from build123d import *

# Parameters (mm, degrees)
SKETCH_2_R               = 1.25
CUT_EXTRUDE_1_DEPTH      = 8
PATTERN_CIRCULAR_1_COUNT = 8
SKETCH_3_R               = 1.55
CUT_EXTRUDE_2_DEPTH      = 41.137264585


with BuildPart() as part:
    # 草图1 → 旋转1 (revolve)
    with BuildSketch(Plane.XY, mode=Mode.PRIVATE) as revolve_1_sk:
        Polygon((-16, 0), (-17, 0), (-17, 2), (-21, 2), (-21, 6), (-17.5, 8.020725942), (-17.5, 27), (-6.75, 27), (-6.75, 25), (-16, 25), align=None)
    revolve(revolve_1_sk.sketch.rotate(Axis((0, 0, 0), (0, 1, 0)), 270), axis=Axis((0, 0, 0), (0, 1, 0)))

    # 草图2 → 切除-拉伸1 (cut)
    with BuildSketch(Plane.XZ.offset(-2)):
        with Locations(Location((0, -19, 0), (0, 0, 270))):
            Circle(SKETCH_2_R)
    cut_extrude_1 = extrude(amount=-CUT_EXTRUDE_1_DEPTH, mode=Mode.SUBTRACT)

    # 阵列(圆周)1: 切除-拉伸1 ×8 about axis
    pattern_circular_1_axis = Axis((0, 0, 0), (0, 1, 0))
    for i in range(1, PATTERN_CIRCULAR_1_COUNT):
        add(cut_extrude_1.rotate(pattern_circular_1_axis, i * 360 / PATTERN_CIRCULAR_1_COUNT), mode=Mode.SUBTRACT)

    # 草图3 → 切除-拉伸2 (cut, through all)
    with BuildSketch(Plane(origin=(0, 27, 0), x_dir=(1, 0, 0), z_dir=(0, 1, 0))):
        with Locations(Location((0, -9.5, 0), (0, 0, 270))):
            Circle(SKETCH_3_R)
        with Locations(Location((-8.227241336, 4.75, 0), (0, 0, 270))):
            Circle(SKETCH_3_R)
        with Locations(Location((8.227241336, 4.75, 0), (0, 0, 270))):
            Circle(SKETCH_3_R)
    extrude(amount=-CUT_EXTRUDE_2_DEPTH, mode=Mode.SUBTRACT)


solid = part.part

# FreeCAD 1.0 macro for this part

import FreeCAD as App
import Part
import Sketcher

V = App.Vector
Q = App.Units.Quantity

doc = App.newDocument("Part")
body = doc.addObject("PartDesign::Body", "Body")

sketch1 = body.newObject("Sketcher::SketchObject", "Sketch")
sketch1.AttachmentSupport = (doc.getObject("XY_Plane"), [""])
sketch1.MapMode = "FlatFace"
sketch1.addGeometry(Part.LineSegment(V(-17, 0, 0), V(-16, 0, 0)), False)
sketch1.addGeometry(Part.LineSegment(V(-16, 0, 0), V(-16, 25, 0)), False)
sketch1.addGeometry(Part.LineSegment(V(-16, 25, 0), V(-6.8, 25, 0)), False)
sketch1.addGeometry(Part.LineSegment(V(-6.8, 25, 0), V(-6.8, 27, 0)), False)
sketch1.addGeometry(Part.LineSegment(V(-6.8, 27, 0), V(-17.5, 27, 0)), False)
sketch1.addGeometry(Part.LineSegment(V(-17.5, 27, 0), V(-17.5, 8, 0)), False)
sketch1.addGeometry(Part.LineSegment(V(-17.5, 8, 0), V(-21, 6, 0)), False)
sketch1.addGeometry(Part.LineSegment(V(-21, 6, 0), V(-21, 2, 0)), False)
sketch1.addGeometry(Part.LineSegment(V(-21, 2, 0), V(-17, 2, 0)), False)
sketch1.addGeometry(Part.LineSegment(V(-17, 2, 0), V(-17, 0, 0)), False)
sketch1.addConstraint(Sketcher.Constraint("Coincident", 0, 2, 1, 1))
sketch1.addConstraint(Sketcher.Constraint("Coincident", 1, 2, 2, 1))
sketch1.addConstraint(Sketcher.Constraint("Coincident", 2, 2, 3, 1))
sketch1.addConstraint(Sketcher.Constraint("Coincident", 3, 2, 4, 1))
sketch1.addConstraint(Sketcher.Constraint("Coincident", 4, 2, 5, 1))
sketch1.addConstraint(Sketcher.Constraint("Coincident", 5, 2, 6, 1))
sketch1.addConstraint(Sketcher.Constraint("Coincident", 6, 2, 7, 1))
sketch1.addConstraint(Sketcher.Constraint("Coincident", 7, 2, 8, 1))
sketch1.addConstraint(Sketcher.Constraint("Coincident", 8, 2, 9, 1))
sketch1.addConstraint(Sketcher.Constraint("Coincident", 9, 2, 0, 1))
sketch1.addConstraint(Sketcher.Constraint("Horizontal", 0))
sketch1.addConstraint(Sketcher.Constraint("Vertical", 1))
sketch1.addConstraint(Sketcher.Constraint("Horizontal", 2))
sketch1.addConstraint(Sketcher.Constraint("Vertical", 3))
sketch1.addConstraint(Sketcher.Constraint("Horizontal", 4))
sketch1.addConstraint(Sketcher.Constraint("Vertical", 5))
sketch1.addConstraint(Sketcher.Constraint("Vertical", 7))
sketch1.addConstraint(Sketcher.Constraint("Horizontal", 8))
sketch1.addConstraint(Sketcher.Constraint("Vertical", 9))
sketch1.addConstraint(Sketcher.Constraint("PointOnObject", 0, 2, -1))
sketch1.addConstraint(Sketcher.Constraint("Equal", 8, 7))
sketch1.addConstraint(Sketcher.Constraint("Equal", 3, 9))
sketch1.addConstraint(Sketcher.Constraint("DistanceX", 0, 1, 0, 2, 1.0))
sketch1.addConstraint(Sketcher.Constraint("DistanceX", 8, 1, 8, 2, 4.0))
sketch1.addConstraint(Sketcher.Constraint("DistanceY", 1, 1, 1, 2, 25.0))
sketch1.addConstraint(Sketcher.Constraint("DistanceY", 3, 1, 3, 2, 2.0))
sketch1.addConstraint(Sketcher.Constraint("Angle", 6, Q("-150 deg")))
sketch1.addConstraint(Sketcher.Constraint("DistanceX", 0, 2, -1, 1, 16.0))
sketch1.addConstraint(Sketcher.Constraint("DistanceX", 2, 1, 2, 2, 9.25))
sketch1.addConstraint(Sketcher.Constraint("DistanceX", 4, 2, 4, 1, 10.75))
revolution = body.newObject("PartDesign::Revolution", "Revolution")
revolution.Profile = sketch1
revolution.ReferenceAxis = (sketch1, ["V_Axis"])
revolution.Angle = 360

sketch2 = body.newObject("Sketcher::SketchObject", "Sketch001")
sketch2.AttachmentSupport = (doc.getObject("XZ_Plane"), [""])
sketch2.MapMode = "FlatFace"
sketch2.AttachmentOffset = App.Placement(V(0, 0, -2), App.Rotation())
sketch2.addGeometry(Part.Circle(V(0, -19, 0), V(0, 0, 1), 1.2), False)
sketch2.addConstraint(Sketcher.Constraint("PointOnObject", 0, 3, -2))
sketch2.addConstraint(Sketcher.Constraint("Diameter", 0, 2.5))
sketch2.addConstraint(Sketcher.Constraint("DistanceY", 0, 3, -1, 1, 19.0))
pocket1 = body.newObject("PartDesign::Pocket", "Pocket")
pocket1.Profile = sketch2
pocket1.Length = 8
doc.recompute()

polarpattern = body.newObject("PartDesign::PolarPattern", "PolarPattern")
polarpattern.Originals = [pocket1]
polarpattern.Axis = (doc.getObject("Y_Axis"), [""])
polarpattern.Angle = 360
polarpattern.Occurrences = 8
body.Tip = polarpattern

sketch3 = body.newObject("Sketcher::SketchObject", "Sketch002")
sketch3.AttachmentSupport = (doc.getObject("XZ_Plane"), [""])
sketch3.MapMode = "FlatFace"
sketch3.AttachmentOffset = App.Placement(V(0, 0, -27), App.Rotation())
sketch3.addGeometry(Part.Circle(V(0, 9.5, 0), V(0, 0, 1), 1.6), False)
sketch3.addGeometry(Part.Circle(V(-8.2, -4.8, 0), V(0, 0, 1), 1.6), False)
sketch3.addGeometry(Part.Circle(V(8.2, -4.8, 0), V(0, 0, 1), 1.6), False)
sketch3.addConstraint(Sketcher.Constraint("Equal", 0, 1))
sketch3.addConstraint(Sketcher.Constraint("Equal", 1, 2))
sketch3.addConstraint(Sketcher.Constraint("Symmetric", 1, 3, 2, 3, -2))
sketch3.addConstraint(Sketcher.Constraint("PointOnObject", 0, 3, -2))
sketch3.addConstraint(Sketcher.Constraint("Diameter", 0, 3.1))
sketch3.addConstraint(Sketcher.Constraint("DistanceY", -1, 1, 0, 3, 9.5))
sketch3.addConstraint(Sketcher.Constraint("DistanceY", 1, 3, -1, 1, 4.75))
sketch3.addConstraint(Sketcher.Constraint("DistanceX", 1, 3, -1, 1, 8.227241))
pocket2 = body.newObject("PartDesign::Pocket", "Pocket001")
pocket2.Profile = sketch3
pocket2.Type = "ThroughAll"
pocket2.Reversed = True

doc.recompute()
